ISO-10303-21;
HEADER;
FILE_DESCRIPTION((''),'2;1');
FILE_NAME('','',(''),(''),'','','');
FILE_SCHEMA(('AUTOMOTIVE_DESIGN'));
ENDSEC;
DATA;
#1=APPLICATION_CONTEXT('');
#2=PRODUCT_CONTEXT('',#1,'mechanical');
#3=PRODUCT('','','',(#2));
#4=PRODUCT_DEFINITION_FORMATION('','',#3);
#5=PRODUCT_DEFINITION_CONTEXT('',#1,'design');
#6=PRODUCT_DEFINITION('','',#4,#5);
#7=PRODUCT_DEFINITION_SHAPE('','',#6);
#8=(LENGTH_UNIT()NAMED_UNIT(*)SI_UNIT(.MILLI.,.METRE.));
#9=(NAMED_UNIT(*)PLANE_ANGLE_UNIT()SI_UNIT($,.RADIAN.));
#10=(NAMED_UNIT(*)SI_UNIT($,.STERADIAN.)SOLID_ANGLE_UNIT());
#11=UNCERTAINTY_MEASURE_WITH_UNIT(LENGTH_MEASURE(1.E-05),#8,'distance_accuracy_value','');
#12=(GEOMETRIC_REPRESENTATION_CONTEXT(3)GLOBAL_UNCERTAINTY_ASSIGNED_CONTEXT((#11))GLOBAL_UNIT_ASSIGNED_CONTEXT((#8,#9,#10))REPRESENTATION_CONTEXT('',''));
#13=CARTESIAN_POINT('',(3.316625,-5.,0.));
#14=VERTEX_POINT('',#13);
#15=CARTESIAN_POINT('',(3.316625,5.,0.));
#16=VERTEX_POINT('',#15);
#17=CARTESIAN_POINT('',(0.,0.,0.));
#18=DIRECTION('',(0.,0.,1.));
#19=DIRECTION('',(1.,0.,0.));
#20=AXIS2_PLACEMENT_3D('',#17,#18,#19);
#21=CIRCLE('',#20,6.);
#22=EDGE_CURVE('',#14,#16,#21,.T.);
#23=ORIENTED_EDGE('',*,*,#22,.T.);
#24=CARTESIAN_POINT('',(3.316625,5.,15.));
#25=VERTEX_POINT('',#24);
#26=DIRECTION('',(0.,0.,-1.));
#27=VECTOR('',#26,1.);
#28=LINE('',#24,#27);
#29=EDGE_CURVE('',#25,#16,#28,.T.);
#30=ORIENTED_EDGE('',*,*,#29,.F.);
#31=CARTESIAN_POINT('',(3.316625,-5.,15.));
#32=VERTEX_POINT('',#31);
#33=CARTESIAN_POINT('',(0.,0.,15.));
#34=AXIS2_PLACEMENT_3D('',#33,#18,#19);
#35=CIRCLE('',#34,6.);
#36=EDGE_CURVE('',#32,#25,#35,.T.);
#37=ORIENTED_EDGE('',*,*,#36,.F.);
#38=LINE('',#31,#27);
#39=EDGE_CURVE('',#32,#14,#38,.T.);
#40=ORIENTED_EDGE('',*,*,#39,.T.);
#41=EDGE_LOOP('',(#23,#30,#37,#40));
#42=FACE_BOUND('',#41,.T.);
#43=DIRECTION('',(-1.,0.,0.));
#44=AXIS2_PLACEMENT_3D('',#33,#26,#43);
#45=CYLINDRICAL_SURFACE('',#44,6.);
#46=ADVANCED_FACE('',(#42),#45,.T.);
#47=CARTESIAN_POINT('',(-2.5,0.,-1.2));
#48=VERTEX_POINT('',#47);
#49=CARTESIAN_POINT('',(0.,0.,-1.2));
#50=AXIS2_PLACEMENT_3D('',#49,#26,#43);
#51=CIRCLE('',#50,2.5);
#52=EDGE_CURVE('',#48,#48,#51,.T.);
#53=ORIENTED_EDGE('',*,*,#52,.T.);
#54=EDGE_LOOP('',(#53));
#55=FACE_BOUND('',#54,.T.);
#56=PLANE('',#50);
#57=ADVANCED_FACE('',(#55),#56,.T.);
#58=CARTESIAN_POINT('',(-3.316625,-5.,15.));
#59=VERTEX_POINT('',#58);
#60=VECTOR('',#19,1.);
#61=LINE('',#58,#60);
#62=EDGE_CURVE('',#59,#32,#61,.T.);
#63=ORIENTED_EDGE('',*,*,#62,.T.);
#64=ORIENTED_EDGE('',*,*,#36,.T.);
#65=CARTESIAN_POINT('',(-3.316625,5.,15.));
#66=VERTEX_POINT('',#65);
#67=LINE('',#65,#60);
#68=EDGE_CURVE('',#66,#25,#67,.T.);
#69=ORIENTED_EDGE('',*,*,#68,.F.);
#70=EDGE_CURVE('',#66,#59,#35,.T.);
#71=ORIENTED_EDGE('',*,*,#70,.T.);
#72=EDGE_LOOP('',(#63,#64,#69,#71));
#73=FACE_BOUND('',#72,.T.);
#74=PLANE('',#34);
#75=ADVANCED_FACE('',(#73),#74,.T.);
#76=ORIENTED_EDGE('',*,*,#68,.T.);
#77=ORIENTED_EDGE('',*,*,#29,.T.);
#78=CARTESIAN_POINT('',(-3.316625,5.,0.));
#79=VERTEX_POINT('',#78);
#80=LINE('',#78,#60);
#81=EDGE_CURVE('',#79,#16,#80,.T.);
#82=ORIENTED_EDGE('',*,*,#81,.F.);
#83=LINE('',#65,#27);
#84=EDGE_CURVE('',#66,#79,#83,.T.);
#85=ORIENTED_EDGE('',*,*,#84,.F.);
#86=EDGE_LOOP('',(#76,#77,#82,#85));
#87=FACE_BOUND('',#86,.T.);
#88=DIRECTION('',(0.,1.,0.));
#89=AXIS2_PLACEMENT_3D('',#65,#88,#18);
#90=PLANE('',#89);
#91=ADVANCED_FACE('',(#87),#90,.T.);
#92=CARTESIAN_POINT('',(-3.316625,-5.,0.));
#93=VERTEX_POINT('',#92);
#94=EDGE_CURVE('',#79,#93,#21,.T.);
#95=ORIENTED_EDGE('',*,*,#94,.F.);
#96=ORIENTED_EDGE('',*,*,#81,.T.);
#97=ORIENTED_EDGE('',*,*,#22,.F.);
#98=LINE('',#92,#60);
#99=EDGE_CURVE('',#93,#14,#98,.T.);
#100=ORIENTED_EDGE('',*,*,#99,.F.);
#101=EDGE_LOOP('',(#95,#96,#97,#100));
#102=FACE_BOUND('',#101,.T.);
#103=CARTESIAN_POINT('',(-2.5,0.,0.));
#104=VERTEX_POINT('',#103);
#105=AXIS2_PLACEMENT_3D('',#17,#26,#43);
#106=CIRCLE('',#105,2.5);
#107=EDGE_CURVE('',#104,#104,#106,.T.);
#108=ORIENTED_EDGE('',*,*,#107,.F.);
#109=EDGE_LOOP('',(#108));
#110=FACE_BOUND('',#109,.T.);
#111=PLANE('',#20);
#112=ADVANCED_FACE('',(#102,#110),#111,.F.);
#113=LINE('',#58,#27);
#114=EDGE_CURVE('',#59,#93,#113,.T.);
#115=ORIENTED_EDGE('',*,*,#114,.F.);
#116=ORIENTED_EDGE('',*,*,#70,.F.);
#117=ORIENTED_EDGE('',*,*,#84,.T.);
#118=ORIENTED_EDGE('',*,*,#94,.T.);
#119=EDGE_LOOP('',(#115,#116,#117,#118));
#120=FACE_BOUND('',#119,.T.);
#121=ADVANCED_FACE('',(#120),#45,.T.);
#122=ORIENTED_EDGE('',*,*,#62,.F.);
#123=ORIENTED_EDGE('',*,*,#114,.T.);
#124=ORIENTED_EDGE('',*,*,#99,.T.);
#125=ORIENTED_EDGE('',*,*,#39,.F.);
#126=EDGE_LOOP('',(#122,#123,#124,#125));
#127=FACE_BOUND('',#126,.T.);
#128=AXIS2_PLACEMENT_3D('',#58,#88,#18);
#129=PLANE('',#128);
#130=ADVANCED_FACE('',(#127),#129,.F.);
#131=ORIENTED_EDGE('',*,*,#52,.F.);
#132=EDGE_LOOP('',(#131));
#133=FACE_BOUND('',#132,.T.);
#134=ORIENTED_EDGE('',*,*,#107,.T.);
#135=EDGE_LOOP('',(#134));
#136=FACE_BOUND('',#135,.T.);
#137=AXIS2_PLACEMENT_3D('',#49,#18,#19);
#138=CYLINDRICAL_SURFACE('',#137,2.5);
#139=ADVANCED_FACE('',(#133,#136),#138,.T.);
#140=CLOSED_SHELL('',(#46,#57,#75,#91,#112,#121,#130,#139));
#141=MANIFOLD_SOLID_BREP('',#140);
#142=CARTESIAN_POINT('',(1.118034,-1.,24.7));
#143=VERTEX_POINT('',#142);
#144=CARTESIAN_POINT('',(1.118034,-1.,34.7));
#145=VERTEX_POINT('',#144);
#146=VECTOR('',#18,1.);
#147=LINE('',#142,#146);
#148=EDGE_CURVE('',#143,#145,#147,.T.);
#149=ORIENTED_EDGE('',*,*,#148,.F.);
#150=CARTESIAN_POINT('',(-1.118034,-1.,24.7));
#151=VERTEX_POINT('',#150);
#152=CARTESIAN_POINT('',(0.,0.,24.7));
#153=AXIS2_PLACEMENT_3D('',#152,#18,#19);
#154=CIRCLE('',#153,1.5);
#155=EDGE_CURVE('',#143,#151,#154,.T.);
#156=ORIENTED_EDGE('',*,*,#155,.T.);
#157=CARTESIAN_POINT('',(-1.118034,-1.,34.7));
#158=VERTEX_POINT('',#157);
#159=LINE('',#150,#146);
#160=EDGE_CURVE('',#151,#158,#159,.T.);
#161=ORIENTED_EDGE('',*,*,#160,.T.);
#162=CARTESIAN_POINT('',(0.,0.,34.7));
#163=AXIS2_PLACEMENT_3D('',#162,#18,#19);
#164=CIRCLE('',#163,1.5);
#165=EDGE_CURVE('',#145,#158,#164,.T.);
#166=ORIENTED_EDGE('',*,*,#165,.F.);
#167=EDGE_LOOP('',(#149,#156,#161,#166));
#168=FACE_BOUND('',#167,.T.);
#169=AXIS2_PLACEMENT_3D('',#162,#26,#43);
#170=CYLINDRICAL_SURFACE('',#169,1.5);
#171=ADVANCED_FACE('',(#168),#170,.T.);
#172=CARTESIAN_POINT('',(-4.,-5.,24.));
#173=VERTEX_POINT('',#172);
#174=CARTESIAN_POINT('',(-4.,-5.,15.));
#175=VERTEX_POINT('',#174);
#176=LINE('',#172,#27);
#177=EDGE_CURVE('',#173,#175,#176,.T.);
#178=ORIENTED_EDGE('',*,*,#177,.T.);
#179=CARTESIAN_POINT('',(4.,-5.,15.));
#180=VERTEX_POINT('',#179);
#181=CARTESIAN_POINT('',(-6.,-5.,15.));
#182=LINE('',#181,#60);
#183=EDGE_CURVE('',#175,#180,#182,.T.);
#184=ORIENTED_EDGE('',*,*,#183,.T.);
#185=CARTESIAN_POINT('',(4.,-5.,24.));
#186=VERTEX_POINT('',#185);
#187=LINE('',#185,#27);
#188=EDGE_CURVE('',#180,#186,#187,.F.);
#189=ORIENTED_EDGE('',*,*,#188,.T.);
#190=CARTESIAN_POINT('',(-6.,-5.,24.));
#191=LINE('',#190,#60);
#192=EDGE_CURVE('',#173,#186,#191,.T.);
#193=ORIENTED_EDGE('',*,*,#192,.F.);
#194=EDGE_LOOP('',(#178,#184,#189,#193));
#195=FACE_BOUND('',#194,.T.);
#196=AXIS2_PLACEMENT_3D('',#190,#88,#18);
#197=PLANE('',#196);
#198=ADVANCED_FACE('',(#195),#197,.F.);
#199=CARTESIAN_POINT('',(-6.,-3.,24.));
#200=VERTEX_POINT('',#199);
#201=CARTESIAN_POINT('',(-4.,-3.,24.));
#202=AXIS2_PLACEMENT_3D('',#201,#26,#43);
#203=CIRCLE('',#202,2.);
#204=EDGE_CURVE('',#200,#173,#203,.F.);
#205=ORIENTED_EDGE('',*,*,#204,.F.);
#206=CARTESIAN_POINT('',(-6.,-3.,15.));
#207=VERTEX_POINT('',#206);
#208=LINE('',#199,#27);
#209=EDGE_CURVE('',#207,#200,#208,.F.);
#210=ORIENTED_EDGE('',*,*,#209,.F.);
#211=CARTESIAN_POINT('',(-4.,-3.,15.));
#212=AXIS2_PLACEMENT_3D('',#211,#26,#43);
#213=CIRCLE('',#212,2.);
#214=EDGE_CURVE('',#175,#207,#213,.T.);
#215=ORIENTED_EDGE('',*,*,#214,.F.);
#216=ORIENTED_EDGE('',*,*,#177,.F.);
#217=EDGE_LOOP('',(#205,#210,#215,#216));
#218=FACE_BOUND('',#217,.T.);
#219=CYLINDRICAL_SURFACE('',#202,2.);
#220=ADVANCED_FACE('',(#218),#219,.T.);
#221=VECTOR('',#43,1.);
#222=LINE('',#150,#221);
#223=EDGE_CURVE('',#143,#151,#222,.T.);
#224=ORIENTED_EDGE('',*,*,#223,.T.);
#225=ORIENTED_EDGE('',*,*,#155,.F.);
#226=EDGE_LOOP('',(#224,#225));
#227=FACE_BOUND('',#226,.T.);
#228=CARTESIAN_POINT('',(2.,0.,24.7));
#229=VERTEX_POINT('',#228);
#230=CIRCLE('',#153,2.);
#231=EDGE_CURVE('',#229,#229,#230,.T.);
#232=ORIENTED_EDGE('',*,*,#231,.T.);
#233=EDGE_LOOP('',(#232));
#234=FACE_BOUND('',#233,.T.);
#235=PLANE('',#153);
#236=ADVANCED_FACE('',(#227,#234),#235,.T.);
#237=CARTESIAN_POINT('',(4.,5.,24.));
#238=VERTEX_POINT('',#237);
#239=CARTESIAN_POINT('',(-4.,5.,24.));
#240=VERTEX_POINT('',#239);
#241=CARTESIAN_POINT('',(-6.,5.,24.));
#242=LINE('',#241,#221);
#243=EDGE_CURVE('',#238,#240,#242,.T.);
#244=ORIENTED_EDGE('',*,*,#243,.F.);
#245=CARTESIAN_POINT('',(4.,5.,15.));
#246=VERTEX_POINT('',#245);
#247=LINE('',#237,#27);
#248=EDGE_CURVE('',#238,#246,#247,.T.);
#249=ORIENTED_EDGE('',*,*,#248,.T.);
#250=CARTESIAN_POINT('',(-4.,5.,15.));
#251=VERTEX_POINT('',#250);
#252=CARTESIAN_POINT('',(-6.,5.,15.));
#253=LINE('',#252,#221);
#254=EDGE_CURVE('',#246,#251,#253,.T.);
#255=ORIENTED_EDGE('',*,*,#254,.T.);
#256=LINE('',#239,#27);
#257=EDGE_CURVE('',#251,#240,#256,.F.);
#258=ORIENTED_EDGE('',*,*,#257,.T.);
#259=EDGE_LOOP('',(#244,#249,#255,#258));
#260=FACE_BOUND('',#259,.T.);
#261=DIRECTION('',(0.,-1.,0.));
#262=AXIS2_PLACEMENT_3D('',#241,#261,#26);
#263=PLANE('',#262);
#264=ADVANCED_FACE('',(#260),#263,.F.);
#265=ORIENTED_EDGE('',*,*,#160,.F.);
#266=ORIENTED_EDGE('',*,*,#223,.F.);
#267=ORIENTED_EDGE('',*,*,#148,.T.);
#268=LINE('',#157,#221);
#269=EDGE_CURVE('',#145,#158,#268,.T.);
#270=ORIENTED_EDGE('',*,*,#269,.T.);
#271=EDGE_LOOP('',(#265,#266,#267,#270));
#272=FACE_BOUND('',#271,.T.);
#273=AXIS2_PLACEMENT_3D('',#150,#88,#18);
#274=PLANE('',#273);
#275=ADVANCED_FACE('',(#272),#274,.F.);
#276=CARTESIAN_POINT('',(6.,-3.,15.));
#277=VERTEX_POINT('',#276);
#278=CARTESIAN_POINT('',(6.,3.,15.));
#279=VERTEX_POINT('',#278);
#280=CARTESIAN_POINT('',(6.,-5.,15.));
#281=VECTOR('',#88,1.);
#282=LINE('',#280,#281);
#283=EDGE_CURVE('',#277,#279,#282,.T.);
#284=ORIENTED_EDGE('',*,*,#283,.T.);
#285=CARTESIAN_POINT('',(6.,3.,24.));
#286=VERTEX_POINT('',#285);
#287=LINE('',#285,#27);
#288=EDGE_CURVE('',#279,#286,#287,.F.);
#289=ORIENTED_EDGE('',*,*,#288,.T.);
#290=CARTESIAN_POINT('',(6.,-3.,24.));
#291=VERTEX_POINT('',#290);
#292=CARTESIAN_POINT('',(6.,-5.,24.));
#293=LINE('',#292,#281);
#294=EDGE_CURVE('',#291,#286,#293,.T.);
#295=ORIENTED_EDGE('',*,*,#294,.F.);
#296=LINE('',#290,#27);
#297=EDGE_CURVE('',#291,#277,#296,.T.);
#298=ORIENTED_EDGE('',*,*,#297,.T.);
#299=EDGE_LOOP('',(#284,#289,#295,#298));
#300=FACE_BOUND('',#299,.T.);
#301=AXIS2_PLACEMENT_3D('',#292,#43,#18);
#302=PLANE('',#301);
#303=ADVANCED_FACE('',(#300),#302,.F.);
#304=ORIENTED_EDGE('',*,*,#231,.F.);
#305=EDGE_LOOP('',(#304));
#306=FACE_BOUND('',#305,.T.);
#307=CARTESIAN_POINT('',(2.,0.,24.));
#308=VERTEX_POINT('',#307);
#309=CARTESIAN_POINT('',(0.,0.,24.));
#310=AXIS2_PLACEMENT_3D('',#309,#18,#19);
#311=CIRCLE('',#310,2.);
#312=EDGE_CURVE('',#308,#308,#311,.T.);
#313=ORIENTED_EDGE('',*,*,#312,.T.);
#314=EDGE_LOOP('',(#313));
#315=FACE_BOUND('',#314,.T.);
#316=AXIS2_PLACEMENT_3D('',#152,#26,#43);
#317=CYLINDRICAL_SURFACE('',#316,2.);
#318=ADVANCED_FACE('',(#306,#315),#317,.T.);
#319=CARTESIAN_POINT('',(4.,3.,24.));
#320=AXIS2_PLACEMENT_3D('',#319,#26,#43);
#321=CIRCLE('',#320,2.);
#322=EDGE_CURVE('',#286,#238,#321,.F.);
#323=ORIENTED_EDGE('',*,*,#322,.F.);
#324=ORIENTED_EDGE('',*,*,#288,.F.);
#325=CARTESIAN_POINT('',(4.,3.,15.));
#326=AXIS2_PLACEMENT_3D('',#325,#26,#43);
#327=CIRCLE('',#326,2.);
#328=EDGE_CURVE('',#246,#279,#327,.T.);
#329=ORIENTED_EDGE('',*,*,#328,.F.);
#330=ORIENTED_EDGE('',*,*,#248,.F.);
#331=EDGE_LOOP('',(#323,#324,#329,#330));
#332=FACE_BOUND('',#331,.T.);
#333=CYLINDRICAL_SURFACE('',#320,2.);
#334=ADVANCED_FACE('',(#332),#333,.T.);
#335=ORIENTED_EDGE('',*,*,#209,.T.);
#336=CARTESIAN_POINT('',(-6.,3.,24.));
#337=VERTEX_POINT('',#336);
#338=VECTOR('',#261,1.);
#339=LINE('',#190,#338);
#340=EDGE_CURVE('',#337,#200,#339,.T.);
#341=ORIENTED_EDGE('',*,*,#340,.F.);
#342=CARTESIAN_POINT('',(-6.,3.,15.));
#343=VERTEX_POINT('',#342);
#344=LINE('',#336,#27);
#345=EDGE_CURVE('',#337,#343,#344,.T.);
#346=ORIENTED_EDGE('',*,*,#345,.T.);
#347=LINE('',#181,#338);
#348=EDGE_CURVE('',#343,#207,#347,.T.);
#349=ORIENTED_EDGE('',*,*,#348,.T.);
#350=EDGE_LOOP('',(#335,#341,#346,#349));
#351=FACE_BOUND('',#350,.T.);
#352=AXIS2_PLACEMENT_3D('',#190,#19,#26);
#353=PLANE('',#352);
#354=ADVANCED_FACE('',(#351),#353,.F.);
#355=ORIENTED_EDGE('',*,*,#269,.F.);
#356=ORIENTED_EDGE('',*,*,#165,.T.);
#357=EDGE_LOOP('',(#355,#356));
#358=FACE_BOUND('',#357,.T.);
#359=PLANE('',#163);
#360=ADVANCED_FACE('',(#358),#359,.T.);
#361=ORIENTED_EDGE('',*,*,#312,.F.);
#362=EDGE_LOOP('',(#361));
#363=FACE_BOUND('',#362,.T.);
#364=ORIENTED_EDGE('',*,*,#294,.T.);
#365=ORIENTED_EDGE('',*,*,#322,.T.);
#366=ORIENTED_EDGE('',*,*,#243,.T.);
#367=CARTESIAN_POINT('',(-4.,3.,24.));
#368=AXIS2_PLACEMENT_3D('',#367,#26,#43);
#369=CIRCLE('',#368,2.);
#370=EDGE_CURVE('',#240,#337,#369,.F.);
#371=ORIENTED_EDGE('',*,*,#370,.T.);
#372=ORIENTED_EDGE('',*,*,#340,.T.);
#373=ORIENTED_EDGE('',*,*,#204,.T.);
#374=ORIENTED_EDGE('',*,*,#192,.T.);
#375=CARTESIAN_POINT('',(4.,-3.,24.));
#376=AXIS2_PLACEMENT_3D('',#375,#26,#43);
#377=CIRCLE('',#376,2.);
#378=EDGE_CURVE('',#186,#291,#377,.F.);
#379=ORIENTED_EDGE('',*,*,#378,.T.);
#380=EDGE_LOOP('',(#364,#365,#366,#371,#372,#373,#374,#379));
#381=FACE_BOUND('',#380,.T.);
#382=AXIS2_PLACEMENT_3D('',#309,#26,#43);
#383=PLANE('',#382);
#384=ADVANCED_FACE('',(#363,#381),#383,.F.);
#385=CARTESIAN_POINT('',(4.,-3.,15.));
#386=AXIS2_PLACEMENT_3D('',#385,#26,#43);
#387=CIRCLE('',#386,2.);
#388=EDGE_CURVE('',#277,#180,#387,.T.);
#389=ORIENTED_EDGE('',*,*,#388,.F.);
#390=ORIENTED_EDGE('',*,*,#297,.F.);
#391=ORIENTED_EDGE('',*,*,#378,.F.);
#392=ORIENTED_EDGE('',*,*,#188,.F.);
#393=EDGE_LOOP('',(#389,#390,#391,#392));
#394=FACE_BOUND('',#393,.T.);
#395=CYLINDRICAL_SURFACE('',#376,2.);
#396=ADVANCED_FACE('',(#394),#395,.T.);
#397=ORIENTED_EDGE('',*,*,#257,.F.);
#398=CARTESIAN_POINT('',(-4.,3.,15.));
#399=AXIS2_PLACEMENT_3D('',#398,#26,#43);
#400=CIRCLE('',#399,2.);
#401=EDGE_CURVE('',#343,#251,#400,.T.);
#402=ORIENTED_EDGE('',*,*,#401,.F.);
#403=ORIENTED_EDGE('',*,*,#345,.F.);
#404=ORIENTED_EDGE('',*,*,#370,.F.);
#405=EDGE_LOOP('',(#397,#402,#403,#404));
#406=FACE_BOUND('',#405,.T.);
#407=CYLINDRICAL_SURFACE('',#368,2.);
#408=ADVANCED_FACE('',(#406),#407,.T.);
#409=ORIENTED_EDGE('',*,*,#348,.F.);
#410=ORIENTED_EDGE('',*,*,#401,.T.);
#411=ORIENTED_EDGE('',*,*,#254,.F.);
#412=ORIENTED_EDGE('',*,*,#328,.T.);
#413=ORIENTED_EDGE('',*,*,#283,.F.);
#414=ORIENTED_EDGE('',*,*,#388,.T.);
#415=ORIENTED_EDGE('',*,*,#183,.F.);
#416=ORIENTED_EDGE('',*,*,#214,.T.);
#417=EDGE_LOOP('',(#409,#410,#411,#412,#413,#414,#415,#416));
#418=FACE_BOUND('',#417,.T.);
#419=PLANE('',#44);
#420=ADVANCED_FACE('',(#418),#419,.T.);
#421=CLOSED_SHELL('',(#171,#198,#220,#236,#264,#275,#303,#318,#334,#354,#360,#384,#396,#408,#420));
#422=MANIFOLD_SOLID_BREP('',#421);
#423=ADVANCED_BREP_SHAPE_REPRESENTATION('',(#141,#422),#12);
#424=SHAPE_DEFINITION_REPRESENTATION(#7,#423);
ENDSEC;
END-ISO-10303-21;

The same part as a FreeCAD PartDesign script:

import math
import FreeCAD as App
import Part
import Sketcher
from FreeCAD import Vector
Q = App.Units.Quantity


def edges_at(feature, points):
    """Names of the edges that pass closest to the given points."""
    edges = feature.Shape.Edges
    near = lambda p: min(range(len(edges)), key=lambda i: edges[i].distToShape(Part.Vertex(*p))[0])
    return sorted({f"Edge{near(p) + 1}" for p in points})

doc = App.newDocument("Part")
params = doc.addObject("Spreadsheet::Sheet", "Params")
for row, (alias, value) in enumerate([
    ("sketch1_radius", "6 mm"),
    ("pad1_length", "15 mm"),
    ("sketch2_diameter", "5 mm"),
    ("pad2_length", "1.2 mm"),
    ("sketch3_width", "12 mm"),
    ("sketch3_height", "10 mm"),
    ("pad3_length", "9 mm"),
    ("fillet_radius", "2 mm"),
    ("sketch4_diameter", "4 mm"),
    ("pad4_length", "0.7 mm"),
    ("sketch5_diameter", "3 mm"),
    ("pad5_length", "10 mm"),
    ("sketch6_radius", "1.5 mm"),
    ("pocket1_length", "10 mm"),
], start=1):
    params.set(f"A{row}", alias)
    params.set(f"B{row}", "=" + value)
    params.setAlias(f"B{row}", alias)

body = doc.addObject("PartDesign::Body", "Body")

sketch1 = doc.addObject("Sketcher::SketchObject", "Sketch")
body.addObject(sketch1)
sketch1.AttachmentSupport = (doc.XY_Plane, [""])
sketch1.MapMode = "FlatFace"
sketch1.addGeometry([
    Part.LineSegment(Vector(3, 5, 0), Vector(-3, 5, 0)),
    Part.ArcOfCircle(Part.Circle(Vector(0, 0, 0), Vector(0, 0, 1), 6), math.radians(124), math.radians(236)),
    Part.LineSegment(Vector(-3, -5, 0), Vector(3, -5, 0)),
    Part.ArcOfCircle(Part.Circle(Vector(0, 0, 0), Vector(0, 0, 1), 6), math.radians(-56), math.radians(56)),
], False)
sketch1.addConstraint([
    Sketcher.Constraint("Coincident", 0, 2, 1, 1),
    Sketcher.Constraint("Coincident", 1, 2, 2, 1),
    Sketcher.Constraint("Coincident", 2, 2, 3, 1),
    Sketcher.Constraint("Coincident", 3, 2, 0, 1),
    Sketcher.Constraint("Horizontal", 0),
    Sketcher.Constraint("Horizontal", 2),
    Sketcher.Constraint("Coincident", 1, 3, -1, 1),
    Sketcher.Constraint("Coincident", 3, 3, -1, 1),
    Sketcher.Constraint("Equal", 1, 3),
    Sketcher.Constraint("Vertical", 0, 2, 1, 2),
    Sketcher.Constraint("Radius", 1, Q("6 mm")),
    Sketcher.Constraint("DistanceY", -1, 1, 0, 2, Q("5 mm")),
])
sketch1.setExpression("Constraints[10]", "Params.sketch1_radius")
pad1 = doc.addObject("PartDesign::Pad", "Pad")
body.addObject(pad1)
pad1.Profile = sketch1
pad1.setExpression("Length", "Params.pad1_length")

sketch2 = doc.addObject("Sketcher::SketchObject", "Sketch001")
body.addObject(sketch2)
sketch2.AttachmentSupport = (doc.XY_Plane, [""])
sketch2.MapMode = "FlatFace"
sketch2.addGeometry(Part.Circle(Vector(0, 0, 0), Vector(0, 0, 1), 2.5), False)
sketch2.addConstraint([
    Sketcher.Constraint("Coincident", 0, 3, -1, 1),
    Sketcher.Constraint("Diameter", 0, Q("5 mm")),
])
sketch2.setExpression("Constraints[1]", "Params.sketch2_diameter")
pad2 = doc.addObject("PartDesign::Pad", "Pad001")
body.addObject(pad2)
pad2.Profile = sketch2
pad2.setExpression("Length", "Params.pad2_length")
pad2.Reversed = True
body2 = doc.addObject("PartDesign::Body", "Body001")

sketch3 = doc.addObject("Sketcher::SketchObject", "Sketch002")
body2.addObject(sketch3)
sketch3.AttachmentSupport = (doc.getObject("XY_Plane001"), [""])
sketch3.MapMode = "FlatFace"
sketch3.AttachmentOffset = App.Placement(Vector(0, 0, 15), App.Rotation())
sketch3.addGeometry([
    Part.LineSegment(Vector(-6, 5, 0), Vector(-6, -5, 0)),
    Part.LineSegment(Vector(-6, -5, 0), Vector(6, -5, 0)),
    Part.LineSegment(Vector(6, -5, 0), Vector(6, 5, 0)),
    Part.LineSegment(Vector(6, 5, 0), Vector(-6, 5, 0)),
], False)
sketch3.addConstraint([
    Sketcher.Constraint("Coincident", 0, 2, 1, 1),
    Sketcher.Constraint("Coincident", 1, 2, 2, 1),
    Sketcher.Constraint("Coincident", 2, 2, 3, 1),
    Sketcher.Constraint("Coincident", 3, 2, 0, 1),
    Sketcher.Constraint("Vertical", 0),
    Sketcher.Constraint("Horizontal", 1),
    Sketcher.Constraint("Vertical", 2),
    Sketcher.Constraint("Horizontal", 3),
    Sketcher.Constraint("Symmetric", 0, 2, 2, 2, -1, 1),
    Sketcher.Constraint("DistanceX", 1, 1, 1, 2, Q("12 mm")),
    Sketcher.Constraint("DistanceY", 0, 2, 0, 1, Q("10 mm")),
])
sketch3.setExpression("Constraints[9]", "Params.sketch3_width")
sketch3.setExpression("Constraints[10]", "Params.sketch3_height")
pad3 = doc.addObject("PartDesign::Pad", "Pad002")
body2.addObject(pad3)
pad3.Profile = sketch3
pad3.setExpression("Length", "Params.pad3_length")
doc.recompute()

fillet = doc.addObject("PartDesign::Fillet", "Fillet")
body2.addObject(fillet)
fillet.Base = (pad3, edges_at(pad3, [
    (6, -5, 19.5),
    (-6, -5, 19.5),
    (-6, 5, 19.5),
    (6, 5, 19.5),
]))
fillet.setExpression("Radius", "Params.fillet_radius")

sketch4 = doc.addObject("Sketcher::SketchObject", "Sketch003")
body2.addObject(sketch4)
sketch4.AttachmentSupport = (doc.getObject("XY_Plane001"), [""])
sketch4.MapMode = "FlatFace"
sketch4.AttachmentOffset = App.Placement(Vector(0, 0, 24), App.Rotation())
sketch4.addGeometry(Part.Circle(Vector(0, 0, 0), Vector(0, 0, 1), 2), False)
sketch4.addConstraint([
    Sketcher.Constraint("Coincident", 0, 3, -1, 1),
    Sketcher.Constraint("Diameter", 0, Q("4 mm")),
])
sketch4.setExpression("Constraints[1]", "Params.sketch4_diameter")
pad4 = doc.addObject("PartDesign::Pad", "Pad003")
body2.addObject(pad4)
pad4.Profile = sketch4
pad4.setExpression("Length", "Params.pad4_length")

sketch5 = doc.addObject("Sketcher::SketchObject", "Sketch004")
body2.addObject(sketch5)
sketch5.AttachmentSupport = (doc.getObject("XY_Plane001"), [""])
sketch5.MapMode = "FlatFace"
sketch5.AttachmentOffset = App.Placement(Vector(0, 0, 24.7), App.Rotation())
sketch5.addGeometry(Part.Circle(Vector(0, 0, 0), Vector(0, 0, 1), 1.5), False)
sketch5.addConstraint([
    Sketcher.Constraint("Coincident", 0, 3, -1, 1),
    Sketcher.Constraint("Diameter", 0, Q("3 mm")),
])
sketch5.setExpression("Constraints[1]", "Params.sketch5_diameter")
pad5 = doc.addObject("PartDesign::Pad", "Pad004")
body2.addObject(pad5)
pad5.Profile = sketch5
pad5.setExpression("Length", "Params.pad5_length")

sketch6 = doc.addObject("Sketcher::SketchObject", "Sketch005")
body2.addObject(sketch6)
sketch6.AttachmentSupport = (doc.getObject("XY_Plane001"), [""])
sketch6.MapMode = "FlatFace"
sketch6.AttachmentOffset = App.Placement(Vector(0, 0, 34.7), App.Rotation())
sketch6.addGeometry([
    Part.LineSegment(Vector(1.1, -1, 0), Vector(-1.1, -1, 0)),
    Part.ArcOfCircle(Part.Circle(Vector(0, 0, 0), Vector(0, 0, 1), 1.5), math.radians(-138), math.radians(-42)),
], False)
sketch6.addConstraint([
    Sketcher.Constraint("Coincident", 0, 1, 1, 2),
    Sketcher.Constraint("Coincident", 1, 1, 0, 2),
    Sketcher.Constraint("Horizontal", 0),
    Sketcher.Constraint("Coincident", 1, 3, -1, 1),
    Sketcher.Constraint("Radius", 1, Q("1.5 mm")),
    Sketcher.Constraint("DistanceY", 0, 1, -1, 1, Q("1 mm")),
])
sketch6.setExpression("Constraints[4]", "Params.sketch6_radius")
pocket1 = doc.addObject("PartDesign::Pocket", "Pocket")
body2.addObject(pocket1)
pocket1.Profile = sketch6
pocket1.setExpression("Length", "Params.pocket1_length")

doc.recompute()
